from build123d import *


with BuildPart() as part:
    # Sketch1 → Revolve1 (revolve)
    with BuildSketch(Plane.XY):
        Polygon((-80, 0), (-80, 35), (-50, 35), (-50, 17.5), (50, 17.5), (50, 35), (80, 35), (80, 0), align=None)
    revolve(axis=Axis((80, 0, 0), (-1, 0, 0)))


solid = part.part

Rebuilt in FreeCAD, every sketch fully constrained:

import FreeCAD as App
import Part
import Sketcher
from FreeCAD import Vector

doc = App.newDocument("Part")
params = doc.addObject("Spreadsheet::Sheet", "Params")
for row, (alias, value) in enumerate([
    ("sketch1_width", "160 mm"),
    ("sketch1_width2", "30 mm"),
    ("sketch1_height", "35 mm"),
    ("sketch1_height2", "17.5 mm"),
    ("revolution_angle", "360 deg"),
], start=1):
    params.set(f"A{row}", alias)
    params.set(f"B{row}", "=" + value)
    params.setAlias(f"B{row}", alias)

body = doc.addObject("PartDesign::Body", "Body")

# Sketch on XY plane
sketch1 = doc.addObject("Sketcher::SketchObject", "Sketch")
body.addObject(sketch1)
sketch1.AttachmentSupport = (doc.XY_Plane, [""])
sketch1.MapMode = "FlatFace"
sketch1.addGeometry(Part.LineSegment(Vector(-80, 35, 0), Vector(-80, 0, 0)), False)
sketch1.addGeometry(Part.LineSegment(Vector(-80, 0, 0), Vector(80, 0, 0)), False)
sketch1.addGeometry(Part.LineSegment(Vector(80, 0, 0), Vector(80, 35, 0)), False)
sketch1.addGeometry(Part.LineSegment(Vector(80, 35, 0), Vector(50, 35, 0)), False)
sketch1.addGeometry(Part.LineSegment(Vector(50, 35, 0), Vector(50, 18, 0)), False)
sketch1.addGeometry(Part.LineSegment(Vector(50, 18, 0), Vector(-50, 18, 0)), False)
sketch1.addGeometry(Part.LineSegment(Vector(-50, 18, 0), Vector(-50, 35, 0)), False)
sketch1.addGeometry(Part.LineSegment(Vector(-50, 35, 0), Vector(-80, 35, 0)), False)
sketch1.addConstraint(Sketcher.Constraint("Coincident", 0, 2, 1, 1))
sketch1.addConstraint(Sketcher.Constraint("Coincident", 1, 2, 2, 1))
sketch1.addConstraint(Sketcher.Constraint("Coincident", 2, 2, 3, 1))
sketch1.addConstraint(Sketcher.Constraint("Coincident", 3, 2, 4, 1))
sketch1.addConstraint(Sketcher.Constraint("Coincident", 4, 2, 5, 1))
sketch1.addConstraint(Sketcher.Constraint("Coincident", 5, 2, 6, 1))
sketch1.addConstraint(Sketcher.Constraint("Coincident", 6, 2, 7, 1))
sketch1.addConstraint(Sketcher.Constraint("Coincident", 7, 2, 0, 1))
sketch1.addConstraint(Sketcher.Constraint("Vertical", 0))
sketch1.addConstraint(Sketcher.Constraint("Horizontal", 1))
sketch1.addConstraint(Sketcher.Constraint("Vertical", 2))
sketch1.addConstraint(Sketcher.Constraint("Horizontal", 3))
sketch1.addConstraint(Sketcher.Constraint("Vertical", 4))
sketch1.addConstraint(Sketcher.Constraint("Horizontal", 5))
sketch1.addConstraint(Sketcher.Constraint("Vertical", 6))
sketch1.addConstraint(Sketcher.Constraint("Horizontal", 7))
sketch1.addConstraint(Sketcher.Constraint("Symmetric", 0, 2, 1, 2, -1, 1))
sketch1.addConstraint(Sketcher.Constraint("Symmetric", 3, 2, 6, 2, -2))
sketch1.addConstraint(Sketcher.Constraint("DistanceX", 1, 1, 1, 2, 160.0))
sketch1.addConstraint(Sketcher.Constraint("DistanceX", 3, 2, 3, 1, 30.0))
sketch1.addConstraint(Sketcher.Constraint("DistanceY", 0, 2, 0, 1, 35.0))
sketch1.addConstraint(Sketcher.Constraint("DistanceY", 4, 2, 4, 1, 17.5))
sketch1.setExpression("Constraints[18]", "Params.sketch1_width")
sketch1.setExpression("Constraints[19]", "Params.sketch1_width2")
sketch1.setExpression("Constraints[20]", "Params.sketch1_height")
sketch1.setExpression("Constraints[21]", "Params.sketch1_height2")
revolution = doc.addObject("PartDesign::Revolution", "Revolution")
body.addObject(revolution)
revolution.Profile = sketch1
revolution.ReferenceAxis = (sketch1, ["H_Axis"])
revolution.setExpression("Angle", "Params.revolution_angle")

doc.recompute()
